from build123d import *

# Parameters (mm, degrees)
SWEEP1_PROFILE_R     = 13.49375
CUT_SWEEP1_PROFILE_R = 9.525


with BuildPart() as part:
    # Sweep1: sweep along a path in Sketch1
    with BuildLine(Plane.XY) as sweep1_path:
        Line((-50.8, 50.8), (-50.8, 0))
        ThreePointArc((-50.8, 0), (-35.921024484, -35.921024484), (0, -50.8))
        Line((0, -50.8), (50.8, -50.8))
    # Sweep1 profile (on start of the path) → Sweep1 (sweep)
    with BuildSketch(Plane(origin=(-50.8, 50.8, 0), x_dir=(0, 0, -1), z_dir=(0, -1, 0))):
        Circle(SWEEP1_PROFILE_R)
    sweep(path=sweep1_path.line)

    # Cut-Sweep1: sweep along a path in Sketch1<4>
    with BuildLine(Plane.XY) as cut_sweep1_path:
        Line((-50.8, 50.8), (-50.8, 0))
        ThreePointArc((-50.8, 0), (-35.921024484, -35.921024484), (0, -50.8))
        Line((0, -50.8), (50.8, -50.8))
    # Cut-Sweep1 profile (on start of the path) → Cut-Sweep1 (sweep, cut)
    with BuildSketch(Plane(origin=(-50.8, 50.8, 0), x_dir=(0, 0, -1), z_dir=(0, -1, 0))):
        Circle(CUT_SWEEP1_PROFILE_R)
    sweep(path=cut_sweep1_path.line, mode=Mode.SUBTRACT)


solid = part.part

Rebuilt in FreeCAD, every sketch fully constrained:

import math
import FreeCAD as App
import Part
import Sketcher

V = App.Vector
Q = App.Units.Quantity

doc = App.newDocument("Part")
params = doc.addObject("Spreadsheet::Sheet", "Params")
for row, (alias, value) in enumerate([
    ("sketch1_diameter", "1.0625 in"),
    ("sketch2_radius", "2 in"),
    ("sketch3_diameter", "0.75 in"),
    ("sketch4_radius", "2 in"),
], start=1):
    params.set(f"A{row}", alias)
    params.set(f"B{row}", "=" + value)
    params.setAlias(f"B{row}", alias)

body = doc.addObject("PartDesign::Body", "Body")

sketch1 = body.newObject("Sketcher::SketchObject", "Sketch")
sketch1.AttachmentSupport = (doc.getObject("XZ_Plane"), [""])
sketch1.MapMode = "FlatFace"
sketch1.AttachmentOffset = App.Placement(V(0, 0, -2 * 25.4), App.Rotation())
sketch1.addGeometry(Part.Circle(V(-51, 0, 0), V(0, 0, 1), 13), False)
sketch1.addConstraint([
    Sketcher.Constraint("PointOnObject", 0, 3, -1),
    Sketcher.Constraint("Diameter", 0, Q("1.0625 in")),
    Sketcher.Constraint("DistanceX", 0, 3, -1, 1, Q("2 in")),
])
sketch1.setExpression("Constraints[1]", "Params.sketch1_diameter")

sketch2 = body.newObject("Sketcher::SketchObject", "Sketch001")
sketch2.AttachmentSupport = (doc.getObject("XY_Plane"), [""])
sketch2.MapMode = "FlatFace"
sketch2.addGeometry([
    Part.LineSegment(V(-51, 51, 0), V(-51, 0, 0)),
    Part.ArcOfCircle(Part.Circle(V(0, 0, 0), V(0, 0, 1), 51), math.radians(-180), math.radians(-90)),
    Part.LineSegment(V(0, -51, 0), V(51, -51, 0)),
], False)
sketch2.addConstraint([
    Sketcher.Constraint("Tangent", 0, 2, 1, 1),
    Sketcher.Constraint("Tangent", 1, 2, 2, 1),
    Sketcher.Constraint("Vertical", 0),
    Sketcher.Constraint("Horizontal", 2),
    Sketcher.Constraint("Coincident", 1, 3, -1, 1),
    Sketcher.Constraint("Symmetric", 0, 1, 2, 2, -1, 1),
    Sketcher.Constraint("Radius", 1, Q("2 in")),
])
sketch2.setExpression("Constraints[6]", "Params.sketch2_radius")
doc.recompute()

additivepipe = body.newObject("PartDesign::AdditivePipe", "AdditivePipe")
additivepipe.Profile = sketch1
additivepipe.Spine = (sketch2, ["Edge1", "Edge2", "Edge3"])

sketch3 = body.newObject("Sketcher::SketchObject", "Sketch002")
sketch3.AttachmentSupport = (doc.getObject("XZ_Plane"), [""])
sketch3.MapMode = "FlatFace"
sketch3.AttachmentOffset = App.Placement(V(0, 0, -2 * 25.4), App.Rotation())
sketch3.addGeometry(Part.Circle(V(-51, 0, 0), V(0, 0, 1), 10), False)
sketch3.addConstraint([
    Sketcher.Constraint("PointOnObject", 0, 3, -1),
    Sketcher.Constraint("Diameter", 0, Q("0.75 in")),
    Sketcher.Constraint("DistanceX", 0, 3, -1, 1, Q("2 in")),
])
sketch3.setExpression("Constraints[1]", "Params.sketch3_diameter")

sketch4 = body.newObject("Sketcher::SketchObject", "Sketch003")
sketch4.AttachmentSupport = (doc.getObject("XY_Plane"), [""])
sketch4.MapMode = "FlatFace"
sketch4.addGeometry([
    Part.LineSegment(V(-51, 51, 0), V(-51, 0, 0)),
    Part.ArcOfCircle(Part.Circle(V(0, 0, 0), V(0, 0, 1), 51), math.radians(-180), math.radians(-90)),
    Part.LineSegment(V(0, -51, 0), V(51, -51, 0)),
], False)
sketch4.addConstraint([
    Sketcher.Constraint("Tangent", 0, 2, 1, 1),
    Sketcher.Constraint("Tangent", 1, 2, 2, 1),
    Sketcher.Constraint("Vertical", 0),
    Sketcher.Constraint("Horizontal", 2),
    Sketcher.Constraint("Coincident", 1, 3, -1, 1),
    Sketcher.Constraint("Symmetric", 0, 1, 2, 2, -1, 1),
    Sketcher.Constraint("Radius", 1, Q("2 in")),
])
sketch4.setExpression("Constraints[6]", "Params.sketch4_radius")
doc.recompute()

subtractivepipe = body.newObject("PartDesign::SubtractivePipe", "SubtractivePipe")
subtractivepipe.Profile = sketch3
subtractivepipe.Spine = (sketch4, ["Edge1", "Edge2", "Edge3"])

doc.recompute()
